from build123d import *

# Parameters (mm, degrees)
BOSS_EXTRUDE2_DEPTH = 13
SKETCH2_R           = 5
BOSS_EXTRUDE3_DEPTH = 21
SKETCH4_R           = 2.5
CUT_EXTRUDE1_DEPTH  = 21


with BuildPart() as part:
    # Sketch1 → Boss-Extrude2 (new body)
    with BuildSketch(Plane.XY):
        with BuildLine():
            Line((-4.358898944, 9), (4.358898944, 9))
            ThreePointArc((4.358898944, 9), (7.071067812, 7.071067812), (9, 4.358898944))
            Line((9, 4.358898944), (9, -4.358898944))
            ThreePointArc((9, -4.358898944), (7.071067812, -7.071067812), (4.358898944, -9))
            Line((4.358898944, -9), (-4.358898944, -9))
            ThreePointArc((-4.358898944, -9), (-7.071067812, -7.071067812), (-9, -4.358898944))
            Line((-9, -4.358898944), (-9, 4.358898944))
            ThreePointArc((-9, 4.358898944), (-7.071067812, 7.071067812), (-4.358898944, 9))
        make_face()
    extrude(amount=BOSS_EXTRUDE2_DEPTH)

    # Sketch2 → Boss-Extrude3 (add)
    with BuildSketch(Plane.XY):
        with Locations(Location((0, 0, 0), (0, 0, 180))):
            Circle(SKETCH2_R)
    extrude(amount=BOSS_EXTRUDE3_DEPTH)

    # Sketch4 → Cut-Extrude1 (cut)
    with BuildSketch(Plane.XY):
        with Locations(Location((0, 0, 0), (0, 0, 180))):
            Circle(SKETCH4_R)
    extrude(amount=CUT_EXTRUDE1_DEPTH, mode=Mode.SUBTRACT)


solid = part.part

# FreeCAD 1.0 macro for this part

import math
import FreeCAD as App
import Part
import Sketcher
from FreeCAD import Vector
Q = App.Units.Quantity

doc = App.newDocument("Part")
body = doc.addObject("PartDesign::Body", "Body")

# Sketch on XY plane
sketch1 = body.newObject("Sketcher::SketchObject", "Sketch")
sketch1.AttachmentSupport = (doc.getObject("XY_Plane"), [""])
sketch1.MapMode = "FlatFace"
sketch1.addGeometry([
    Part.LineSegment(Vector(4, 9, 0), Vector(-4, 9, 0)),  # 0
    Part.ArcOfCircle(Part.Circle(Vector(0, 0, 0), Vector(0, 0, 1), 10), math.radians(116), math.radians(154)),  # 1
    Part.LineSegment(Vector(-9, 4, 0), Vector(-9, -4, 0)),  # 2
    Part.ArcOfCircle(Part.Circle(Vector(0, 0, 0), Vector(0, 0, 1), 10), math.radians(-154), math.radians(-116)),  # 3
    Part.LineSegment(Vector(-4, -9, 0), Vector(4, -9, 0)),  # 4
    Part.ArcOfCircle(Part.Circle(Vector(0, 0, 0), Vector(0, 0, 1), 10), math.radians(-64), math.radians(-26)),  # 5
    Part.LineSegment(Vector(9, -4, 0), Vector(9, 4, 0)),  # 6
    Part.ArcOfCircle(Part.Circle(Vector(0, 0, 0), Vector(0, 0, 1), 10), math.radians(26), math.radians(64)),  # 7
], False)
sketch1.addConstraint([
    Sketcher.Constraint("Coincident", 0, 2, 1, 1),
    Sketcher.Constraint("Coincident", 1, 2, 2, 1),
    Sketcher.Constraint("Coincident", 2, 2, 3, 1),
    Sketcher.Constraint("Coincident", 3, 2, 4, 1),
    Sketcher.Constraint("Coincident", 4, 2, 5, 1),
    Sketcher.Constraint("Coincident", 5, 2, 6, 1),
    Sketcher.Constraint("Coincident", 6, 2, 7, 1),
    Sketcher.Constraint("Coincident", 7, 2, 0, 1),
    Sketcher.Constraint("Horizontal", 0),
    Sketcher.Constraint("Vertical", 2),
    Sketcher.Constraint("Horizontal", 4),
    Sketcher.Constraint("Vertical", 6),
    Sketcher.Constraint("Coincident", 1, 3, -1, 1),
    Sketcher.Constraint("Coincident", 3, 3, -1, 1),
    Sketcher.Constraint("Coincident", 5, 3, -1, 1),
    Sketcher.Constraint("Coincident", 7, 3, -1, 1),
    Sketcher.Constraint("Equal", 1, 3),
    Sketcher.Constraint("Equal", 3, 5),
    Sketcher.Constraint("Equal", 5, 7),
    Sketcher.Constraint("Horizontal", 2, 2, 5, 2),
    Sketcher.Constraint("Vertical", 0, 2, 3, 2),
    Sketcher.Constraint("Equal", 4, 2),
    Sketcher.Constraint("Radius", 1, Q("10 mm")),
    Sketcher.Constraint("DistanceY", -1, 1, 0, 2, Q("9 mm")),
])
pad1 = body.newObject("PartDesign::Pad", "Pad")
pad1.Profile = sketch1
pad1.Length = 13

# Sketch on XY plane
sketch2 = body.newObject("Sketcher::SketchObject", "Sketch001")
sketch2.AttachmentSupport = (doc.getObject("XY_Plane"), [""])
sketch2.MapMode = "FlatFace"
sketch2.addGeometry(Part.Circle(Vector(0, 0, 0), Vector(0, 0, 1), 5), False)
sketch2.addConstraint([
    Sketcher.Constraint("Coincident", 0, 3, -1, 1),
    Sketcher.Constraint("Diameter", 0, Q("10 mm")),
])
pad2 = body.newObject("PartDesign::Pad", "Pad001")
pad2.Profile = sketch2
pad2.Length = 21

# Sketch on XY plane
sketch3 = body.newObject("Sketcher::SketchObject", "Sketch002")
sketch3.AttachmentSupport = (doc.getObject("XY_Plane"), [""])
sketch3.MapMode = "FlatFace"
sketch3.addGeometry(Part.Circle(Vector(0, 0, 0), Vector(0, 0, 1), 2.5), False)
sketch3.addConstraint([
    Sketcher.Constraint("Coincident", 0, 3, -1, 1),
    Sketcher.Constraint("Diameter", 0, Q("5 mm")),
])
pocket1 = body.newObject("PartDesign::Pocket", "Pocket")
pocket1.Profile = sketch3
pocket1.Length = 21
pocket1.Reversed = True

doc.recompute()
